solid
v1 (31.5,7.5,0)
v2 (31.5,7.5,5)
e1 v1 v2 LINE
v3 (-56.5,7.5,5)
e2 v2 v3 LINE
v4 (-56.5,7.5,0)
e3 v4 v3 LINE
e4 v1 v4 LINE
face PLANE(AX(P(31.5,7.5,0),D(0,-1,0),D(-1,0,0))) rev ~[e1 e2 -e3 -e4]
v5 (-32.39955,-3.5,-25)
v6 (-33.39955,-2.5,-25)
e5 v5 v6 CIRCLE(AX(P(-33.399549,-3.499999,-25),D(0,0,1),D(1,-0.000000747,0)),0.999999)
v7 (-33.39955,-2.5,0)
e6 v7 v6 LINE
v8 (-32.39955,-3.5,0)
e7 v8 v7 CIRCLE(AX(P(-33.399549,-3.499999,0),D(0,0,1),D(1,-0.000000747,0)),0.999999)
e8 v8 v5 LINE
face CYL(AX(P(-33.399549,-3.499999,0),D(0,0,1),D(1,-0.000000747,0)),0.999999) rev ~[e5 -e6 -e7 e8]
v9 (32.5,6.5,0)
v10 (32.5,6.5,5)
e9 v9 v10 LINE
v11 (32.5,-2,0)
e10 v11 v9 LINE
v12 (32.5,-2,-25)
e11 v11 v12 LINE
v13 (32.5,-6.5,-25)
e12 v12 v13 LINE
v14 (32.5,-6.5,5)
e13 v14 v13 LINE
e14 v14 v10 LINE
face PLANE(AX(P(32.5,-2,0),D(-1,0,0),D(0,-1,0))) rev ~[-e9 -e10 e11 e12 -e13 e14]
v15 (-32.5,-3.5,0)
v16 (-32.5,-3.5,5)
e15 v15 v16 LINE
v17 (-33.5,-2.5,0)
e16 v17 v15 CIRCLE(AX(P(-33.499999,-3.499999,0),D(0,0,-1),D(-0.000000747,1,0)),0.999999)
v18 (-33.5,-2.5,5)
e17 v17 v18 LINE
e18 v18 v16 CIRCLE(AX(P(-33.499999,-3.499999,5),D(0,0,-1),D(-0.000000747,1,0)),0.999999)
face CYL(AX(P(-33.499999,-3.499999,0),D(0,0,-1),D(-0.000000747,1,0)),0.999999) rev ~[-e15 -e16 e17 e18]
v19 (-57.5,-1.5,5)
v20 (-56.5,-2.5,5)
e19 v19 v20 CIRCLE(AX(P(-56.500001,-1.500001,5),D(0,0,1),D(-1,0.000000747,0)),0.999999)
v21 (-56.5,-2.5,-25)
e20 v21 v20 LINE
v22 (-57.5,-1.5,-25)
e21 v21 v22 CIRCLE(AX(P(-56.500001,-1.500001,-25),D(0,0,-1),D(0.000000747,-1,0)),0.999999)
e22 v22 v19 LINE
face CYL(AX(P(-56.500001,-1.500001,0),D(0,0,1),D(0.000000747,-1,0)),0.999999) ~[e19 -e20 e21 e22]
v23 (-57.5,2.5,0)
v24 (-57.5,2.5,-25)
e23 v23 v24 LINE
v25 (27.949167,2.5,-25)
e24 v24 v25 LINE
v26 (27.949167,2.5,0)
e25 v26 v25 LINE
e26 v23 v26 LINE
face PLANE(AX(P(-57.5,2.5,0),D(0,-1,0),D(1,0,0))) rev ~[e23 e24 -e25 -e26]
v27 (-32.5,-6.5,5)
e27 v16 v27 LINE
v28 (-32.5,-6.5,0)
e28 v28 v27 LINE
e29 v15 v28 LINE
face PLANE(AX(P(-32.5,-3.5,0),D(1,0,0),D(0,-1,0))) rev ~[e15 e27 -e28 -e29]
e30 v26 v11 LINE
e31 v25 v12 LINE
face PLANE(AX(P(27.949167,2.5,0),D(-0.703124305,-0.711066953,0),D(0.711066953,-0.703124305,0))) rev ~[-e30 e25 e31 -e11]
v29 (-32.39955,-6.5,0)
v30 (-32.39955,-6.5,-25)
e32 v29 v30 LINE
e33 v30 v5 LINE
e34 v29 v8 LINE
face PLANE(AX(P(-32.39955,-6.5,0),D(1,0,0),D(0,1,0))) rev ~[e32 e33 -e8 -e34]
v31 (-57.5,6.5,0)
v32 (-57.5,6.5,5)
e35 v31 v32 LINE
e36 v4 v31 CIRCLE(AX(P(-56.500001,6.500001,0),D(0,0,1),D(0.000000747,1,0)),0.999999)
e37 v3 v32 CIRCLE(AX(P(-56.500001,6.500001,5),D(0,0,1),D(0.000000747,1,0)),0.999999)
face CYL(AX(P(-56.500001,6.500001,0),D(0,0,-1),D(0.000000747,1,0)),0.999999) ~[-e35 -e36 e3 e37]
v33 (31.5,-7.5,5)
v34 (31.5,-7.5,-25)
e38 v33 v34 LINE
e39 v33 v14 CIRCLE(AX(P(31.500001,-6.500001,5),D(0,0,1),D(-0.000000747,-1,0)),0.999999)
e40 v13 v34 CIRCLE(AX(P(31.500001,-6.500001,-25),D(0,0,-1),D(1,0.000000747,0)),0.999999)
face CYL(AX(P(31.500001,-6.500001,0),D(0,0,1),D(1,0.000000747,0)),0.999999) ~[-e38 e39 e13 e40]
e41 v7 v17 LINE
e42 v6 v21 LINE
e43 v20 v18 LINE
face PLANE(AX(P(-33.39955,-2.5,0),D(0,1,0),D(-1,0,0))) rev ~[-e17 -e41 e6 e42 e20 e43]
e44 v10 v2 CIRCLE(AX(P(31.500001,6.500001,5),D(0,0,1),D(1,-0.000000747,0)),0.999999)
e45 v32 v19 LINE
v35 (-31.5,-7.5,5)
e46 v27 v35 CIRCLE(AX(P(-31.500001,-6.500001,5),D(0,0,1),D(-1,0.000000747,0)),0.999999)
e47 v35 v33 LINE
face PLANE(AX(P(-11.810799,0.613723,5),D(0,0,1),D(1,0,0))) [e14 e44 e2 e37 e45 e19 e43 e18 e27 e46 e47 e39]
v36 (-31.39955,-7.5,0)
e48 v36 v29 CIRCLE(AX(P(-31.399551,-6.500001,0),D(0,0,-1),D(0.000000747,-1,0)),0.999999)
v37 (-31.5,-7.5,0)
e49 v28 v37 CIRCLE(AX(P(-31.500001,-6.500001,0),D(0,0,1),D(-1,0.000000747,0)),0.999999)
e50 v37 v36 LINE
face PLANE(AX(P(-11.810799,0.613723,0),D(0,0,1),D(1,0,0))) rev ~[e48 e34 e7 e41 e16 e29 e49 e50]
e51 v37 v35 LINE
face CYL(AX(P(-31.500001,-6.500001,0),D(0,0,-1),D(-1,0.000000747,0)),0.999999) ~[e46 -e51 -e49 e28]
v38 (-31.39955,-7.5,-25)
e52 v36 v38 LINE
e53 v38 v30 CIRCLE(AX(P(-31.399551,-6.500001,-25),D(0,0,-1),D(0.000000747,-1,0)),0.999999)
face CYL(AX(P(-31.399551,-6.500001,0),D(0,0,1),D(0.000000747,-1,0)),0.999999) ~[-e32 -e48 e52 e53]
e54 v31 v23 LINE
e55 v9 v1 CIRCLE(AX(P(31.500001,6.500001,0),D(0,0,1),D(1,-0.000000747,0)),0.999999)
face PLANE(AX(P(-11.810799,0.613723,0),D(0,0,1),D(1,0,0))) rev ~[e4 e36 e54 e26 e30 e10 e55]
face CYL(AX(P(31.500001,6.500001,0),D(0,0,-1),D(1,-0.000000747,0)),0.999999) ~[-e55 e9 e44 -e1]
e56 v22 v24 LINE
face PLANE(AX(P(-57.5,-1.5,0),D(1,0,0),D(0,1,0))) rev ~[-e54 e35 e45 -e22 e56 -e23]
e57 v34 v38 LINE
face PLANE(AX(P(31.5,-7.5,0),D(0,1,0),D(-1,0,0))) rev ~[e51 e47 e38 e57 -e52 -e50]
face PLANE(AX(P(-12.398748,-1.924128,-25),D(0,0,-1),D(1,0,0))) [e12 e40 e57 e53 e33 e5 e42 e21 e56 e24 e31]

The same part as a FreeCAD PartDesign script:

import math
import FreeCAD as App
import Part
import Sketcher

V = App.Vector

doc = App.newDocument("Part")
body = doc.addObject("PartDesign::Body", "Body")

sketch1 = body.newObject("Sketcher::SketchObject", "Sketch")
sketch1.AttachmentSupport = (doc.getObject("XY_Plane"), [""])
sketch1.MapMode = "FlatFace"
sketch1.addGeometry(Part.ArcOfCircle(Part.Circle(V(-31.500001, -6.500001, 0), V(0, 0, 1), 0.999999), math.radians(179.999957), math.radians(270.000043)), False)
sketch1.addGeometry(Part.LineSegment(V(-31.5, -7.5, 0), V(31.5, -7.5, 0)), False)
sketch1.addGeometry(Part.ArcOfCircle(Part.Circle(V(31.500001, -6.500001, 0), V(0, 0, 1), 0.999999), math.radians(-90.000043), math.radians(0.000043)), False)
sketch1.addGeometry(Part.LineSegment(V(32.5, -6.5, 0), V(32.5, 6.5, 0)), False)
sketch1.addGeometry(Part.ArcOfCircle(Part.Circle(V(31.500001, 6.500001, 0), V(0, 0, 1), 0.999999), math.radians(-0.000043), math.radians(90.000043)), False)
sketch1.addGeometry(Part.LineSegment(V(31.5, 7.5, 0), V(-56.5, 7.5, 0)), False)
sketch1.addGeometry(Part.ArcOfCircle(Part.Circle(V(-56.500001, 6.500001, 0), V(0, 0, 1), 0.999999), math.radians(89.999957), math.radians(180.000043)), False)
sketch1.addGeometry(Part.LineSegment(V(-57.5, 6.5, 0), V(-57.5, -1.5, 0)), False)
sketch1.addGeometry(Part.ArcOfCircle(Part.Circle(V(-56.500001, -1.500001, 0), V(0, 0, 1), 0.999999), math.radians(179.999957), math.radians(270.000043)), False)
sketch1.addGeometry(Part.LineSegment(V(-56.5, -2.5, 0), V(-33.5, -2.5, 0)), False)
sketch1.addGeometry(Part.ArcOfCircle(Part.Circle(V(-33.499999, -3.499999, 0), V(0, 0, 1), 0.999999), math.radians(-0.000043), math.radians(90.000043)), False)
sketch1.addGeometry(Part.LineSegment(V(-32.5, -3.5, 0), V(-32.5, -6.5, 0)), False)
sketch1.addConstraint(Sketcher.Constraint("Tangent", 0, 2, 1, 1))
sketch1.addConstraint(Sketcher.Constraint("Tangent", 1, 2, 2, 1))
sketch1.addConstraint(Sketcher.Constraint("Tangent", 2, 2, 3, 1))
sketch1.addConstraint(Sketcher.Constraint("Tangent", 3, 2, 4, 1))
sketch1.addConstraint(Sketcher.Constraint("Tangent", 4, 2, 5, 1))
sketch1.addConstraint(Sketcher.Constraint("Tangent", 5, 2, 6, 1))
sketch1.addConstraint(Sketcher.Constraint("Tangent", 6, 2, 7, 1))
sketch1.addConstraint(Sketcher.Constraint("Tangent", 7, 2, 8, 1))
sketch1.addConstraint(Sketcher.Constraint("Tangent", 8, 2, 9, 1))
sketch1.addConstraint(Sketcher.Constraint("Tangent", 9, 2, 10, 2))
sketch1.addConstraint(Sketcher.Constraint("Tangent", 10, 1, 11, 1))
sketch1.addConstraint(Sketcher.Constraint("Tangent", 11, 2, 0, 1))
sketch1.addConstraint(Sketcher.Constraint("Horizontal", 1))
sketch1.addConstraint(Sketcher.Constraint("Vertical", 3))
sketch1.addConstraint(Sketcher.Constraint("Horizontal", 5))
sketch1.addConstraint(Sketcher.Constraint("Vertical", 7))
sketch1.addConstraint(Sketcher.Constraint("Horizontal", 9))
sketch1.addConstraint(Sketcher.Constraint("Vertical", 11))
sketch1.addConstraint(Sketcher.Constraint("Equal", 0, 2))
sketch1.addConstraint(Sketcher.Constraint("Equal", 2, 4))
sketch1.addConstraint(Sketcher.Constraint("Equal", 4, 6))
sketch1.addConstraint(Sketcher.Constraint("Equal", 6, 8))
sketch1.addConstraint(Sketcher.Constraint("Equal", 8, 10))
sketch1.addConstraint(Sketcher.Constraint("Symmetric", 0, 3, 4, 3, -1, 1))
sketch1.addConstraint(Sketcher.Constraint("Radius", 0, 0.999999))
sketch1.addConstraint(Sketcher.Constraint("DistanceX", 1, 1, 1, 2, 63.0))
sketch1.addConstraint(Sketcher.Constraint("DistanceX", 5, 2, 5, 1, 88.0))
sketch1.addConstraint(Sketcher.Constraint("DistanceY", 3, 1, 3, 2, 13.0))
sketch1.addConstraint(Sketcher.Constraint("DistanceY", 7, 2, 7, 1, 8.0))
pad1 = body.newObject("PartDesign::Pad", "Pad")
pad1.Profile = sketch1
pad1.Length = 5

sketch2 = body.newObject("Sketcher::SketchObject", "Sketch001")
sketch2.AttachmentSupport = (doc.getObject("XY_Plane"), [""])
sketch2.MapMode = "FlatFace"
sketch2.addGeometry(Part.LineSegment(V(-57.5, -1.5, 0), V(-57.5, 2.5, 0)), False)
sketch2.addGeometry(Part.LineSegment(V(-57.5, 2.5, 0), V(27.949167, 2.5, 0)), False)
sketch2.addGeometry(Part.LineSegment(V(27.949167, 2.5, 0), V(32.5, -2, 0)), False)
sketch2.addGeometry(Part.LineSegment(V(32.5, -2, 0), V(32.5, -6.5, 0)), False)
sketch2.addGeometry(Part.ArcOfCircle(Part.Circle(V(31.500001, -6.500001, 0), V(0, 0, 1), 0.999999), math.radians(-90.000043), math.radians(0.000043)), False)
sketch2.addGeometry(Part.LineSegment(V(31.5, -7.5, 0), V(-31.39955, -7.5, 0)), False)
sketch2.addGeometry(Part.ArcOfCircle(Part.Circle(V(-31.399551, -6.500001, 0), V(0, 0, 1), 0.999999), math.radians(179.999957), math.radians(270.000043)), False)
sketch2.addGeometry(Part.LineSegment(V(-32.39955, -6.5, 0), V(-32.39955, -3.5, 0)), False)
sketch2.addGeometry(Part.ArcOfCircle(Part.Circle(V(-33.399549, -3.499999, 0), V(0, 0, 1), 0.999999), math.radians(-0.000043), math.radians(90.000043)), False)
sketch2.addGeometry(Part.LineSegment(V(-33.39955, -2.5, 0), V(-56.5, -2.5, 0)), False)
sketch2.addGeometry(Part.ArcOfCircle(Part.Circle(V(-56.500001, -1.500001, 0), V(0, 0, 1), 0.999999), math.radians(179.999957), math.radians(270.000043)), False)
sketch2.addConstraint(Sketcher.Constraint("Coincident", 0, 2, 1, 1))
sketch2.addConstraint(Sketcher.Constraint("Coincident", 1, 2, 2, 1))
sketch2.addConstraint(Sketcher.Constraint("Coincident", 2, 2, 3, 1))
sketch2.addConstraint(Sketcher.Constraint("Tangent", 3, 2, 4, 2))
sketch2.addConstraint(Sketcher.Constraint("Tangent", 4, 1, 5, 1))
sketch2.addConstraint(Sketcher.Constraint("Tangent", 5, 2, 6, 2))
sketch2.addConstraint(Sketcher.Constraint("Tangent", 6, 1, 7, 1))
sketch2.addConstraint(Sketcher.Constraint("Tangent", 7, 2, 8, 1))
sketch2.addConstraint(Sketcher.Constraint("Tangent", 8, 2, 9, 1))
sketch2.addConstraint(Sketcher.Constraint("Tangent", 9, 2, 10, 2))
sketch2.addConstraint(Sketcher.Constraint("Tangent", 10, 1, 0, 1))
sketch2.addConstraint(Sketcher.Constraint("Vertical", 0))
sketch2.addConstraint(Sketcher.Constraint("Horizontal", 1))
sketch2.addConstraint(Sketcher.Constraint("Vertical", 3))
sketch2.addConstraint(Sketcher.Constraint("Horizontal", 5))
sketch2.addConstraint(Sketcher.Constraint("Vertical", 7))
sketch2.addConstraint(Sketcher.Constraint("Horizontal", 9))
sketch2.addConstraint(Sketcher.Constraint("Equal", 4, 6))
sketch2.addConstraint(Sketcher.Constraint("Equal", 6, 8))
sketch2.addConstraint(Sketcher.Constraint("Equal", 8, 10))
sketch2.addConstraint(Sketcher.Constraint("Radius", 4, 0.999999))
sketch2.addConstraint(Sketcher.Constraint("DistanceY", 0, 1, 0, 2, 4.0))
sketch2.addConstraint(Sketcher.Constraint("DistanceY", 7, 1, 7, 2, 3.0))
sketch2.addConstraint(Sketcher.Constraint("DistanceY", 3, 2, 3, 1, 4.5))
sketch2.addConstraint(Sketcher.Constraint("DistanceY", 2, 2, -1, 1, 2.0))
sketch2.addConstraint(Sketcher.Constraint("DistanceX", 10, 3, 4, 3, 88.000001))
sketch2.addConstraint(Sketcher.Constraint("DistanceX", -1, 1, 4, 3, 31.500001))
sketch2.addConstraint(Sketcher.Constraint("DistanceX", 5, 2, 5, 1, 62.89955))
sketch2.addConstraint(Sketcher.Constraint("DistanceX", 1, 1, 1, 2, 85.449167))
pad2 = body.newObject("PartDesign::Pad", "Pad001")
pad2.Profile = sketch2
pad2.Length = 25
pad2.Reversed = True

doc.recompute()
